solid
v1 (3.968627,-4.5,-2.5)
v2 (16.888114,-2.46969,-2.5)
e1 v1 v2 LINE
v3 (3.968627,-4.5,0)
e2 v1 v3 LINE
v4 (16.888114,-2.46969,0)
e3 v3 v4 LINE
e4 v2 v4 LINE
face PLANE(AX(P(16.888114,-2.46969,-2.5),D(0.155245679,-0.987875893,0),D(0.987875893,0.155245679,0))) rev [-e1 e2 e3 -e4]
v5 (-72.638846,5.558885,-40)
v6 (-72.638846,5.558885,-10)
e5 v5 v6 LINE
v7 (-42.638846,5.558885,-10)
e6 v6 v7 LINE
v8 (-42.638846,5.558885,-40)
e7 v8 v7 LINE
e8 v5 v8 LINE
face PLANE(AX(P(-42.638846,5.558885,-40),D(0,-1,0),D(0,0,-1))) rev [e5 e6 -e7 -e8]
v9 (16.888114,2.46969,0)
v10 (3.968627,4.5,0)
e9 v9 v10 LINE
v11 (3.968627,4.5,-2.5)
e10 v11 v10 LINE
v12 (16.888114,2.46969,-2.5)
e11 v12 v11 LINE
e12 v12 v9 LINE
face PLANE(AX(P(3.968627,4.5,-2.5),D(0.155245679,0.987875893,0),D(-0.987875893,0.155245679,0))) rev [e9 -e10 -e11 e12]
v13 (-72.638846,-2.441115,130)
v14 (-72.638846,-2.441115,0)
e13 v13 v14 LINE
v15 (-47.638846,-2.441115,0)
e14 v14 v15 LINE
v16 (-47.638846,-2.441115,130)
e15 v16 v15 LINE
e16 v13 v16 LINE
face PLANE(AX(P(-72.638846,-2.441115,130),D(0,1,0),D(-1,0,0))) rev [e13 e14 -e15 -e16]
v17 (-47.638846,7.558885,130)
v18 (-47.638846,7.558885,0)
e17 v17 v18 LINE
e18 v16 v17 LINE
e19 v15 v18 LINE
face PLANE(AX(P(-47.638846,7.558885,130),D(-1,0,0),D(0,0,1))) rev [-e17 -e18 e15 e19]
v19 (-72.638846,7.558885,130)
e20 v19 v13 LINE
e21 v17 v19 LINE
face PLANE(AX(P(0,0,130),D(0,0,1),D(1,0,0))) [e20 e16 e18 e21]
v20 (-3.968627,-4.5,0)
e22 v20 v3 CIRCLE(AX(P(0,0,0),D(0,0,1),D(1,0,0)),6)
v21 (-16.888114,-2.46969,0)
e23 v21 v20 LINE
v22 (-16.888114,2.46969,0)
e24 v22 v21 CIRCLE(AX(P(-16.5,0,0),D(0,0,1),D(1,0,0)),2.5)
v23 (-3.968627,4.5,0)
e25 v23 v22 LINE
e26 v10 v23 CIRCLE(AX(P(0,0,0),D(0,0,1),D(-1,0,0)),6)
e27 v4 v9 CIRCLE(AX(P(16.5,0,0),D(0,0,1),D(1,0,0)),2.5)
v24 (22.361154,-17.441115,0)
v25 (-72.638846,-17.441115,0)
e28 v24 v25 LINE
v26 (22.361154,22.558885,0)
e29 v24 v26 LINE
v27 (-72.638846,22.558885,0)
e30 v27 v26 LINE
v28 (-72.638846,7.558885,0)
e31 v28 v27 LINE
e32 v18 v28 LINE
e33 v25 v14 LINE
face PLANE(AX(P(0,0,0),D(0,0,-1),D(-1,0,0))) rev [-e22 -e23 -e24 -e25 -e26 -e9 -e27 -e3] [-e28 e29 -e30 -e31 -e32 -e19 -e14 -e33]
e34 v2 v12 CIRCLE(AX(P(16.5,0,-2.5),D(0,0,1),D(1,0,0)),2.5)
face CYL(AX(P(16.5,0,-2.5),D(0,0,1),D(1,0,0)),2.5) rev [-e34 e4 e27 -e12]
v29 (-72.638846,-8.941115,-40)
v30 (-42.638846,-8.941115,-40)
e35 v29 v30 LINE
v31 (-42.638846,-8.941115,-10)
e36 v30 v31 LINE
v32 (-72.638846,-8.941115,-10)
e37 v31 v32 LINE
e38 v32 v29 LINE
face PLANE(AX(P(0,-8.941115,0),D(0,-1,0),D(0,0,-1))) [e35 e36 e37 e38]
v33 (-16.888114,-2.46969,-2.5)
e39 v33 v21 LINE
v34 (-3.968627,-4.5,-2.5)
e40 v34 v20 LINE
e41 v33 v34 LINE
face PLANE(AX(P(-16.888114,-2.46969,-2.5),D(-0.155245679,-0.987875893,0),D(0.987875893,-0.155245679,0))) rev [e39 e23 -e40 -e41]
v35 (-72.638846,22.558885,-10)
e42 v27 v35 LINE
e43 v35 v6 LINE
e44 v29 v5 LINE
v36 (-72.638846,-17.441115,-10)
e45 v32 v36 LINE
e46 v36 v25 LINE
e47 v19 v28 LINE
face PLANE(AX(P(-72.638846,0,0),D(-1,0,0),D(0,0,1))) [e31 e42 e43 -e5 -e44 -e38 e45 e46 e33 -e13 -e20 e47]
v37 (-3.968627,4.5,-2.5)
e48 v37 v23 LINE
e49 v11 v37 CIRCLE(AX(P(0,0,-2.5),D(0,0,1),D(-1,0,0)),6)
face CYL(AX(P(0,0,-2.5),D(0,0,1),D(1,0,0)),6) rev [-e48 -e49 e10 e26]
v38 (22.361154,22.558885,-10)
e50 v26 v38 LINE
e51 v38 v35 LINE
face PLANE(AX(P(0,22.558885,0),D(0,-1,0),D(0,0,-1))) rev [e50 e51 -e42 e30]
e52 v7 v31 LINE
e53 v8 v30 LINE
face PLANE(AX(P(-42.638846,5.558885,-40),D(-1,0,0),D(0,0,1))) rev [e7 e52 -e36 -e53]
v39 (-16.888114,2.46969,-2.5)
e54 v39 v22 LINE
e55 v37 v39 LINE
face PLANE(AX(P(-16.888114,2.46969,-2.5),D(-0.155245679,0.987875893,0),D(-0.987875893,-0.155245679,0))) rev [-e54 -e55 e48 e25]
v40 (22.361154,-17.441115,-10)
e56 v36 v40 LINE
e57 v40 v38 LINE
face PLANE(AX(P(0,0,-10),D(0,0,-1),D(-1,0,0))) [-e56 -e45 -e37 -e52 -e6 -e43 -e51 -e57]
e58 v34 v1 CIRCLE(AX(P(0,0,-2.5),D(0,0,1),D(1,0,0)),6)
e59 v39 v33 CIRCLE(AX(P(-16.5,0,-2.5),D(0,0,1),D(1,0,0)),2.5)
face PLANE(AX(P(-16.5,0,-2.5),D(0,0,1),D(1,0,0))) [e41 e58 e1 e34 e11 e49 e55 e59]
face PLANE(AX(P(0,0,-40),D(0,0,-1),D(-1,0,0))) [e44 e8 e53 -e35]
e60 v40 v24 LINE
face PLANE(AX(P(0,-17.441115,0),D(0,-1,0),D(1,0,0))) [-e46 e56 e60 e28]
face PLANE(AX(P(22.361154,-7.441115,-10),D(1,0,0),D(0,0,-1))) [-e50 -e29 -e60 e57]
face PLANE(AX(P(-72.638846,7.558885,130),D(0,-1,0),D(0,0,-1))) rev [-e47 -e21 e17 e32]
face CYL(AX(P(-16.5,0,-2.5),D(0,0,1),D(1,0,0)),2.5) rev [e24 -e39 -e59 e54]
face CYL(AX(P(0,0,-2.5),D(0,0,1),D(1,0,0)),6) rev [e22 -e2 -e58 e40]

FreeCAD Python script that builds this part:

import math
import FreeCAD as App
import Part
import Sketcher
from FreeCAD import Vector
Q = App.Units.Quantity

doc = App.newDocument("Part")
params = doc.addObject("Spreadsheet::Sheet", "Params")
for row, (alias, value) in enumerate([
    ("sketch1_width", "45 mm"),
    ("sketch1_height", "15 mm"),
    ("pad1_length", "10 mm"),
    ("sketch2_radius", "6 mm"),
    ("sketch2_radius2", "2.5 mm"),
    ("pocket1_length", "2.5 mm"),
    ("sketch3_width", "45 mm"),
    ("sketch3_height", "10 mm"),
    ("pad2_length", "10 mm"),
    ("sketch4_width", "45 mm"),
    ("sketch4_height", "10 mm"),
    ("pad3_length", "15 mm"),
    ("sketch5_width", "40 mm"),
    ("sketch5_height", "10 mm"),
    ("pad4_length", "50 mm"),
    ("sketch6_width", "25 mm"),
    ("sketch6_height", "10 mm"),
    ("pad5_length", "130 mm"),
    ("sketch7_width", "30 mm"),
    ("sketch7_height", "6 mm"),
    ("pad6_length", "30 mm"),
    ("sketch8_width", "30 mm"),
    ("pad7_length", "8.5 mm"),
], start=1):
    params.set(f"A{row}", alias)
    params.set(f"B{row}", "=" + value)
    params.setAlias(f"B{row}", alias)

body = doc.addObject("PartDesign::Body", "Body")

# Sketch on XY plane
sketch1 = body.newObject("Sketcher::SketchObject", "Sketch")
sketch1.AttachmentSupport = (doc.getObject("XY_Plane"), [""])
sketch1.MapMode = "FlatFace"
sketch1.addGeometry(Part.LineSegment(Vector(-23, 8, 0), Vector(-23, -7, 0)), False)
sketch1.addGeometry(Part.LineSegment(Vector(-23, -7, 0), Vector(22, -7, 0)), False)
sketch1.addGeometry(Part.LineSegment(Vector(22, -7, 0), Vector(22, 8, 0)), False)
sketch1.addGeometry(Part.LineSegment(Vector(22, 8, 0), Vector(-23, 8, 0)), False)
sketch1.addConstraint(Sketcher.Constraint("Coincident", 0, 2, 1, 1))
sketch1.addConstraint(Sketcher.Constraint("Coincident", 1, 2, 2, 1))
sketch1.addConstraint(Sketcher.Constraint("Coincident", 2, 2, 3, 1))
sketch1.addConstraint(Sketcher.Constraint("Coincident", 3, 2, 0, 1))
sketch1.addConstraint(Sketcher.Constraint("Vertical", 0))
sketch1.addConstraint(Sketcher.Constraint("Horizontal", 1))
sketch1.addConstraint(Sketcher.Constraint("Vertical", 2))
sketch1.addConstraint(Sketcher.Constraint("Horizontal", 3))
sketch1.addConstraint(Sketcher.Constraint("DistanceX", 1, 1, 1, 2, Q("45 mm")))
sketch1.addConstraint(Sketcher.Constraint("DistanceY", 0, 2, 0, 1, Q("15 mm")))
sketch1.addConstraint(Sketcher.Constraint("DistanceX", 0, 2, -1, 1, Q("22.638846 mm")))
sketch1.addConstraint(Sketcher.Constraint("DistanceY", 0, 2, -1, 1, Q("7.441115 mm")))
sketch1.setExpression("Constraints[8]", "Params.sketch1_width")
sketch1.setExpression("Constraints[9]", "Params.sketch1_height")
pad1 = body.newObject("PartDesign::Pad", "Pad")
pad1.Profile = sketch1
pad1.setExpression("Length", "Params.pad1_length")
pad1.Reversed = True

# Sketch on XY plane
sketch2 = body.newObject("Sketcher::SketchObject", "Sketch001")
sketch2.AttachmentSupport = (doc.getObject("XY_Plane"), [""])
sketch2.MapMode = "FlatFace"
sketch2.addGeometry(Part.LineSegment(Vector(-4, 4.5, 0), Vector(-16.9, 2.5, 0)), False)
sketch2.addGeometry(Part.ArcOfCircle(Part.Circle(Vector(-16.5, 0, 0), Vector(0, 0, 1), 2.5), math.radians(99), math.radians(261)), False)
sketch2.addGeometry(Part.LineSegment(Vector(-16.9, -2.5, 0), Vector(-4, -4.5, 0)), False)
sketch2.addGeometry(Part.ArcOfCircle(Part.Circle(Vector(0, 0, 0), Vector(0, 0, 1), 6), math.radians(-131), math.radians(-49)), False)
sketch2.addGeometry(Part.LineSegment(Vector(4, -4.5, 0), Vector(16.9, -2.5, 0)), False)
sketch2.addGeometry(Part.ArcOfCircle(Part.Circle(Vector(16.5, 0, 0), Vector(0, 0, 1), 2.5), math.radians(-81), math.radians(81)), False)
sketch2.addGeometry(Part.LineSegment(Vector(16.9, 2.5, 0), Vector(4, 4.5, 0)), False)
sketch2.addGeometry(Part.ArcOfCircle(Part.Circle(Vector(0, 0, 0), Vector(0, 0, 1), 6), math.radians(49), math.radians(131)), False)
sketch2.addConstraint(Sketcher.Constraint("Tangent", 0, 2, 1, 1))
sketch2.addConstraint(Sketcher.Constraint("Tangent", 1, 2, 2, 1))
sketch2.addConstraint(Sketcher.Constraint("Coincident", 2, 2, 3, 1))
sketch2.addConstraint(Sketcher.Constraint("Coincident", 3, 2, 4, 1))
sketch2.addConstraint(Sketcher.Constraint("Tangent", 4, 2, 5, 1))
sketch2.addConstraint(Sketcher.Constraint("Tangent", 5, 2, 6, 1))
sketch2.addConstraint(Sketcher.Constraint("Coincident", 6, 2, 7, 1))
sketch2.addConstraint(Sketcher.Constraint("Coincident", 7, 2, 0, 1))
sketch2.addConstraint(Sketcher.Constraint("Coincident", 3, 3, -1, 1))
sketch2.addConstraint(Sketcher.Constraint("Coincident", 7, 3, -1, 1))
sketch2.addConstraint(Sketcher.Constraint("Equal", 1, 5))
sketch2.addConstraint(Sketcher.Constraint("Equal", 3, 7))
sketch2.addConstraint(Sketcher.Constraint("Symmetric", 1, 3, 5, 3, -1, 1))
sketch2.addConstraint(Sketcher.Constraint("Symmetric", 1, 2, 4, 2, -2))
sketch2.addConstraint(Sketcher.Constraint("Parallel", 0, 4))
sketch2.addConstraint(Sketcher.Constraint("Parallel", 2, 6))
sketch2.addConstraint(Sketcher.Constraint("Radius", 3, Q("6 mm")))
sketch2.addConstraint(Sketcher.Constraint("Radius", 1, Q("2.5 mm")))
sketch2.addConstraint(Sketcher.Constraint("DistanceX", 1, 3, 5, 3, Q("33 mm")))
sketch2.addConstraint(Sketcher.Constraint("DistanceY", 3, 2, 6, 2, Q("9 mm")))
sketch2.setExpression("Constraints[16]", "Params.sketch2_radius")
sketch2.setExpression("Constraints[17]", "Params.sketch2_radius2")
pocket1 = body.newObject("PartDesign::Pocket", "Pocket")
pocket1.Profile = sketch2
pocket1.setExpression("Length", "Params.pocket1_length")

# Sketch on XZ plane
sketch3 = body.newObject("Sketcher::SketchObject", "Sketch002")
sketch3.AttachmentSupport = (doc.getObject("XZ_Plane"), [""])
sketch3.MapMode = "FlatFace"
sketch3.AttachmentOffset = App.Placement(Vector(0, 0, 7.441115), App.Rotation())
sketch3.addGeometry(Part.LineSegment(Vector(-23, 0, 0), Vector(-23, -10, 0)), False)
sketch3.addGeometry(Part.LineSegment(Vector(-23, -10, 0), Vector(22, -10, 0)), False)
sketch3.addGeometry(Part.LineSegment(Vector(22, -10, 0), Vector(22, 0, 0)), False)
sketch3.addGeometry(Part.LineSegment(Vector(22, 0, 0), Vector(-23, 0, 0)), False)
sketch3.addConstraint(Sketcher.Constraint("Coincident", 0, 2, 1, 1))
sketch3.addConstraint(Sketcher.Constraint("Coincident", 1, 2, 2, 1))
sketch3.addConstraint(Sketcher.Constraint("Coincident", 2, 2, 3, 1))
sketch3.addConstraint(Sketcher.Constraint("Coincident", 3, 2, 0, 1))
sketch3.addConstraint(Sketcher.Constraint("Vertical", 0))
sketch3.addConstraint(Sketcher.Constraint("Horizontal", 1))
sketch3.addConstraint(Sketcher.Constraint("Vertical", 2))
sketch3.addConstraint(Sketcher.Constraint("Horizontal", 3))
sketch3.addConstraint(Sketcher.Constraint("PointOnObject", 2, 2, -1))
sketch3.addConstraint(Sketcher.Constraint("DistanceX", 1, 1, 1, 2, Q("45 mm")))
sketch3.addConstraint(Sketcher.Constraint("DistanceY", 0, 2, 0, 1, Q("10 mm")))
sketch3.addConstraint(Sketcher.Constraint("DistanceX", 0, 2, -1, 1, Q("22.638846 mm")))
sketch3.setExpression("Constraints[9]", "Params.sketch3_width")
sketch3.setExpression("Constraints[10]", "Params.sketch3_height")
pad2 = body.newObject("PartDesign::Pad", "Pad001")
pad2.Profile = sketch3
pad2.setExpression("Length", "Params.pad2_length")

# Sketch on XZ plane
sketch4 = body.newObject("Sketcher::SketchObject", "Sketch003")
sketch4.AttachmentSupport = (doc.getObject("XZ_Plane"), [""])
sketch4.MapMode = "FlatFace"
sketch4.AttachmentOffset = App.Placement(Vector(0, 0, -7.558885), App.Rotation())
sketch4.addGeometry(Part.LineSegment(Vector(-23, -10, 0), Vector(-23, 0, 0)), False)
sketch4.addGeometry(Part.LineSegment(Vector(-23, 0, 0), Vector(22, 0, 0)), False)
sketch4.addGeometry(Part.LineSegment(Vector(22, 0, 0), Vector(22, -10, 0)), False)
sketch4.addGeometry(Part.LineSegment(Vector(22, -10, 0), Vector(-23, -10, 0)), False)
sketch4.addConstraint(Sketcher.Constraint("Coincident", 0, 2, 1, 1))
sketch4.addConstraint(Sketcher.Constraint("Coincident", 1, 2, 2, 1))
sketch4.addConstraint(Sketcher.Constraint("Coincident", 2, 2, 3, 1))
sketch4.addConstraint(Sketcher.Constraint("Coincident", 3, 2, 0, 1))
sketch4.addConstraint(Sketcher.Constraint("Vertical", 0))
sketch4.addConstraint(Sketcher.Constraint("Horizontal", 1))
sketch4.addConstraint(Sketcher.Constraint("Vertical", 2))
sketch4.addConstraint(Sketcher.Constraint("Horizontal", 3))
sketch4.addConstraint(Sketcher.Constraint("PointOnObject", 0, 2, -1))
sketch4.addConstraint(Sketcher.Constraint("DistanceX", 1, 1, 1, 2, Q("45 mm")))
sketch4.addConstraint(Sketcher.Constraint("DistanceY", 0, 1, 0, 2, Q("10 mm")))
sketch4.addConstraint(Sketcher.Constraint("DistanceX", 0, 2, -1, 1, Q("22.638846 mm")))
sketch4.setExpression("Constraints[9]", "Params.sketch4_width")
sketch4.setExpression("Constraints[10]", "Params.sketch4_height")
pad3 = body.newObject("PartDesign::Pad", "Pad002")
pad3.Profile = sketch4
pad3.setExpression("Length", "Params.pad3_length")
pad3.Reversed = True

# Sketch on YZ plane
sketch5 = body.newObject("Sketcher::SketchObject", "Sketch004")
sketch5.AttachmentSupport = (doc.getObject("YZ_Plane"), [""])
sketch5.MapMode = "FlatFace"
sketch5.AttachmentOffset = App.Placement(Vector(0, 0, -22.638846), App.Rotation())
sketch5.addGeometry(Part.LineSegment(Vector(23, -10, 0), Vector(-17, -10, 0)), False)
sketch5.addGeometry(Part.LineSegment(Vector(-17, -10, 0), Vector(-17, 0, 0)), False)
sketch5.addGeometry(Part.LineSegment(Vector(-17, 0, 0), Vector(23, 0, 0)), False)
sketch5.addGeometry(Part.LineSegment(Vector(23, 0, 0), Vector(23, -10, 0)), False)
sketch5.addConstraint(Sketcher.Constraint("Coincident", 0, 2, 1, 1))
sketch5.addConstraint(Sketcher.Constraint("Coincident", 1, 2, 2, 1))
sketch5.addConstraint(Sketcher.Constraint("Coincident", 2, 2, 3, 1))
sketch5.addConstraint(Sketcher.Constraint("Coincident", 3, 2, 0, 1))
sketch5.addConstraint(Sketcher.Constraint("Horizontal", 0))
sketch5.addConstraint(Sketcher.Constraint("Vertical", 1))
sketch5.addConstraint(Sketcher.Constraint("Horizontal", 2))
sketch5.addConstraint(Sketcher.Constraint("Vertical", 3))
sketch5.addConstraint(Sketcher.Constraint("PointOnObject", 1, 2, -1))
sketch5.addConstraint(Sketcher.Constraint("DistanceX", 0, 2, 0, 1, Q("40 mm")))
sketch5.addConstraint(Sketcher.Constraint("DistanceY", 1, 1, 1, 2, Q("10 mm")))
sketch5.addConstraint(Sketcher.Constraint("DistanceX", 0, 2, -1, 1, Q("17.441115 mm")))
sketch5.setExpression("Constraints[9]", "Params.sketch5_width")
sketch5.setExpression("Constraints[10]", "Params.sketch5_height")
pad4 = body.newObject("PartDesign::Pad", "Pad003")
pad4.Profile = sketch5
pad4.setExpression("Length", "Params.pad4_length")
pad4.Reversed = True

# Sketch on XY plane
sketch6 = body.newObject("Sketcher::SketchObject", "Sketch005")
sketch6.AttachmentSupport = (doc.getObject("XY_Plane"), [""])
sketch6.MapMode = "FlatFace"
sketch6.addGeometry(Part.LineSegment(Vector(-73, 8, 0), Vector(-73, -2, 0)), False)
sketch6.addGeometry(Part.LineSegment(Vector(-73, -2, 0), Vector(-48, -2, 0)), False)
sketch6.addGeometry(Part.LineSegment(Vector(-48, -2, 0), Vector(-48, 8, 0)), False)
sketch6.addGeometry(Part.LineSegment(Vector(-48, 8, 0), Vector(-73, 8, 0)), False)
sketch6.addConstraint(Sketcher.Constraint("Coincident", 0, 2, 1, 1))
sketch6.addConstraint(Sketcher.Constraint("Coincident", 1, 2, 2, 1))
sketch6.addConstraint(Sketcher.Constraint("Coincident", 2, 2, 3, 1))
sketch6.addConstraint(Sketcher.Constraint("Coincident", 3, 2, 0, 1))
sketch6.addConstraint(Sketcher.Constraint("Vertical", 0))
sketch6.addConstraint(Sketcher.Constraint("Horizontal", 1))
sketch6.addConstraint(Sketcher.Constraint("Vertical", 2))
sketch6.addConstraint(Sketcher.Constraint("Horizontal", 3))
sketch6.addConstraint(Sketcher.Constraint("DistanceX", 1, 1, 1, 2, Q("25 mm")))
sketch6.addConstraint(Sketcher.Constraint("DistanceY", 0, 2, 0, 1, Q("10 mm")))
sketch6.addConstraint(Sketcher.Constraint("DistanceX", 0, 2, -1, 1, Q("72.638846 mm")))
sketch6.addConstraint(Sketcher.Constraint("DistanceY", 0, 2, -1, 1, Q("2.441115 mm")))
sketch6.setExpression("Constraints[8]", "Params.sketch6_width")
sketch6.setExpression("Constraints[9]", "Params.sketch6_height")
pad5 = body.newObject("PartDesign::Pad", "Pad004")
pad5.Profile = sketch6
pad5.setExpression("Length", "Params.pad5_length")

# Sketch on XY plane
sketch7 = body.newObject("Sketcher::SketchObject", "Sketch006")
sketch7.AttachmentSupport = (doc.getObject("XY_Plane"), [""])
sketch7.MapMode = "FlatFace"
sketch7.AttachmentOffset = App.Placement(Vector(0, 0, -10), App.Rotation())
sketch7.addGeometry(Part.LineSegment(Vector(-43, 6, 0), Vector(-43, 0, 0)), False)
sketch7.addGeometry(Part.LineSegment(Vector(-43, 0, 0), Vector(-73, 0, 0)), False)
sketch7.addGeometry(Part.LineSegment(Vector(-73, 0, 0), Vector(-73, 6, 0)), False)
sketch7.addGeometry(Part.LineSegment(Vector(-73, 6, 0), Vector(-43, 6, 0)), False)
sketch7.addConstraint(Sketcher.Constraint("Coincident", 0, 2, 1, 1))
sketch7.addConstraint(Sketcher.Constraint("Coincident", 1, 2, 2, 1))
sketch7.addConstraint(Sketcher.Constraint("Coincident", 2, 2, 3, 1))
sketch7.addConstraint(Sketcher.Constraint("Coincident", 3, 2, 0, 1))
sketch7.addConstraint(Sketcher.Constraint("Vertical", 0))
sketch7.addConstraint(Sketcher.Constraint("Horizontal", 1))
sketch7.addConstraint(Sketcher.Constraint("Vertical", 2))
sketch7.addConstraint(Sketcher.Constraint("Horizontal", 3))
sketch7.addConstraint(Sketcher.Constraint("DistanceX", 1, 2, 1, 1, Q("30 mm")))
sketch7.addConstraint(Sketcher.Constraint("DistanceY", 0, 2, 0, 1, Q("6 mm")))
sketch7.addConstraint(Sketcher.Constraint("DistanceX", 0, 2, -1, 1, Q("42.638846 mm")))
sketch7.addConstraint(Sketcher.Constraint("DistanceY", 0, 2, -1, 1, Q("0.441115 mm")))
sketch7.setExpression("Constraints[8]", "Params.sketch7_width")
sketch7.setExpression("Constraints[9]", "Params.sketch7_height")
pad6 = body.newObject("PartDesign::Pad", "Pad005")
pad6.Profile = sketch7
pad6.setExpression("Length", "Params.pad6_length")
pad6.Reversed = True

# Sketch on XZ plane
sketch8 = body.newObject("Sketcher::SketchObject", "Sketch007")
sketch8.AttachmentSupport = (doc.getObject("XZ_Plane"), [""])
sketch8.MapMode = "FlatFace"
sketch8.AttachmentOffset = App.Placement(Vector(0, 0, 0.441115), App.Rotation())
sketch8.addGeometry(Part.LineSegment(Vector(-73, -10, 0), Vector(-73, -40, 0)), False)
sketch8.addGeometry(Part.LineSegment(Vector(-73, -40, 0), Vector(-43, -40, 0)), False)
sketch8.addGeometry(Part.LineSegment(Vector(-43, -40, 0), Vector(-43, -10, 0)), False)
sketch8.addGeometry(Part.LineSegment(Vector(-43, -10, 0), Vector(-73, -10, 0)), False)
sketch8.addConstraint(Sketcher.Constraint("Coincident", 0, 2, 1, 1))
sketch8.addConstraint(Sketcher.Constraint("Coincident", 1, 2, 2, 1))
sketch8.addConstraint(Sketcher.Constraint("Coincident", 2, 2, 3, 1))
sketch8.addConstraint(Sketcher.Constraint("Coincident", 3, 2, 0, 1))
sketch8.addConstraint(Sketcher.Constraint("Vertical", 0))
sketch8.addConstraint(Sketcher.Constraint("Horizontal", 1))
sketch8.addConstraint(Sketcher.Constraint("Vertical", 2))
sketch8.addConstraint(Sketcher.Constraint("Horizontal", 3))
sketch8.addConstraint(Sketcher.Constraint("Equal", 3, 0))
sketch8.addConstraint(Sketcher.Constraint("DistanceX", 1, 1, 1, 2, Q("30 mm")))
sketch8.addConstraint(Sketcher.Constraint("DistanceY", 0, 2, -1, 1, Q("40 mm")))
sketch8.addConstraint(Sketcher.Constraint("DistanceX", 0, 2, -1, 1, Q("72.638846 mm")))
sketch8.setExpression("Constraints[9]", "Params.sketch8_width")
pad7 = body.newObject("PartDesign::Pad", "Pad006")
pad7.Profile = sketch8
pad7.setExpression("Length", "Params.pad7_length")

doc.recompute()
